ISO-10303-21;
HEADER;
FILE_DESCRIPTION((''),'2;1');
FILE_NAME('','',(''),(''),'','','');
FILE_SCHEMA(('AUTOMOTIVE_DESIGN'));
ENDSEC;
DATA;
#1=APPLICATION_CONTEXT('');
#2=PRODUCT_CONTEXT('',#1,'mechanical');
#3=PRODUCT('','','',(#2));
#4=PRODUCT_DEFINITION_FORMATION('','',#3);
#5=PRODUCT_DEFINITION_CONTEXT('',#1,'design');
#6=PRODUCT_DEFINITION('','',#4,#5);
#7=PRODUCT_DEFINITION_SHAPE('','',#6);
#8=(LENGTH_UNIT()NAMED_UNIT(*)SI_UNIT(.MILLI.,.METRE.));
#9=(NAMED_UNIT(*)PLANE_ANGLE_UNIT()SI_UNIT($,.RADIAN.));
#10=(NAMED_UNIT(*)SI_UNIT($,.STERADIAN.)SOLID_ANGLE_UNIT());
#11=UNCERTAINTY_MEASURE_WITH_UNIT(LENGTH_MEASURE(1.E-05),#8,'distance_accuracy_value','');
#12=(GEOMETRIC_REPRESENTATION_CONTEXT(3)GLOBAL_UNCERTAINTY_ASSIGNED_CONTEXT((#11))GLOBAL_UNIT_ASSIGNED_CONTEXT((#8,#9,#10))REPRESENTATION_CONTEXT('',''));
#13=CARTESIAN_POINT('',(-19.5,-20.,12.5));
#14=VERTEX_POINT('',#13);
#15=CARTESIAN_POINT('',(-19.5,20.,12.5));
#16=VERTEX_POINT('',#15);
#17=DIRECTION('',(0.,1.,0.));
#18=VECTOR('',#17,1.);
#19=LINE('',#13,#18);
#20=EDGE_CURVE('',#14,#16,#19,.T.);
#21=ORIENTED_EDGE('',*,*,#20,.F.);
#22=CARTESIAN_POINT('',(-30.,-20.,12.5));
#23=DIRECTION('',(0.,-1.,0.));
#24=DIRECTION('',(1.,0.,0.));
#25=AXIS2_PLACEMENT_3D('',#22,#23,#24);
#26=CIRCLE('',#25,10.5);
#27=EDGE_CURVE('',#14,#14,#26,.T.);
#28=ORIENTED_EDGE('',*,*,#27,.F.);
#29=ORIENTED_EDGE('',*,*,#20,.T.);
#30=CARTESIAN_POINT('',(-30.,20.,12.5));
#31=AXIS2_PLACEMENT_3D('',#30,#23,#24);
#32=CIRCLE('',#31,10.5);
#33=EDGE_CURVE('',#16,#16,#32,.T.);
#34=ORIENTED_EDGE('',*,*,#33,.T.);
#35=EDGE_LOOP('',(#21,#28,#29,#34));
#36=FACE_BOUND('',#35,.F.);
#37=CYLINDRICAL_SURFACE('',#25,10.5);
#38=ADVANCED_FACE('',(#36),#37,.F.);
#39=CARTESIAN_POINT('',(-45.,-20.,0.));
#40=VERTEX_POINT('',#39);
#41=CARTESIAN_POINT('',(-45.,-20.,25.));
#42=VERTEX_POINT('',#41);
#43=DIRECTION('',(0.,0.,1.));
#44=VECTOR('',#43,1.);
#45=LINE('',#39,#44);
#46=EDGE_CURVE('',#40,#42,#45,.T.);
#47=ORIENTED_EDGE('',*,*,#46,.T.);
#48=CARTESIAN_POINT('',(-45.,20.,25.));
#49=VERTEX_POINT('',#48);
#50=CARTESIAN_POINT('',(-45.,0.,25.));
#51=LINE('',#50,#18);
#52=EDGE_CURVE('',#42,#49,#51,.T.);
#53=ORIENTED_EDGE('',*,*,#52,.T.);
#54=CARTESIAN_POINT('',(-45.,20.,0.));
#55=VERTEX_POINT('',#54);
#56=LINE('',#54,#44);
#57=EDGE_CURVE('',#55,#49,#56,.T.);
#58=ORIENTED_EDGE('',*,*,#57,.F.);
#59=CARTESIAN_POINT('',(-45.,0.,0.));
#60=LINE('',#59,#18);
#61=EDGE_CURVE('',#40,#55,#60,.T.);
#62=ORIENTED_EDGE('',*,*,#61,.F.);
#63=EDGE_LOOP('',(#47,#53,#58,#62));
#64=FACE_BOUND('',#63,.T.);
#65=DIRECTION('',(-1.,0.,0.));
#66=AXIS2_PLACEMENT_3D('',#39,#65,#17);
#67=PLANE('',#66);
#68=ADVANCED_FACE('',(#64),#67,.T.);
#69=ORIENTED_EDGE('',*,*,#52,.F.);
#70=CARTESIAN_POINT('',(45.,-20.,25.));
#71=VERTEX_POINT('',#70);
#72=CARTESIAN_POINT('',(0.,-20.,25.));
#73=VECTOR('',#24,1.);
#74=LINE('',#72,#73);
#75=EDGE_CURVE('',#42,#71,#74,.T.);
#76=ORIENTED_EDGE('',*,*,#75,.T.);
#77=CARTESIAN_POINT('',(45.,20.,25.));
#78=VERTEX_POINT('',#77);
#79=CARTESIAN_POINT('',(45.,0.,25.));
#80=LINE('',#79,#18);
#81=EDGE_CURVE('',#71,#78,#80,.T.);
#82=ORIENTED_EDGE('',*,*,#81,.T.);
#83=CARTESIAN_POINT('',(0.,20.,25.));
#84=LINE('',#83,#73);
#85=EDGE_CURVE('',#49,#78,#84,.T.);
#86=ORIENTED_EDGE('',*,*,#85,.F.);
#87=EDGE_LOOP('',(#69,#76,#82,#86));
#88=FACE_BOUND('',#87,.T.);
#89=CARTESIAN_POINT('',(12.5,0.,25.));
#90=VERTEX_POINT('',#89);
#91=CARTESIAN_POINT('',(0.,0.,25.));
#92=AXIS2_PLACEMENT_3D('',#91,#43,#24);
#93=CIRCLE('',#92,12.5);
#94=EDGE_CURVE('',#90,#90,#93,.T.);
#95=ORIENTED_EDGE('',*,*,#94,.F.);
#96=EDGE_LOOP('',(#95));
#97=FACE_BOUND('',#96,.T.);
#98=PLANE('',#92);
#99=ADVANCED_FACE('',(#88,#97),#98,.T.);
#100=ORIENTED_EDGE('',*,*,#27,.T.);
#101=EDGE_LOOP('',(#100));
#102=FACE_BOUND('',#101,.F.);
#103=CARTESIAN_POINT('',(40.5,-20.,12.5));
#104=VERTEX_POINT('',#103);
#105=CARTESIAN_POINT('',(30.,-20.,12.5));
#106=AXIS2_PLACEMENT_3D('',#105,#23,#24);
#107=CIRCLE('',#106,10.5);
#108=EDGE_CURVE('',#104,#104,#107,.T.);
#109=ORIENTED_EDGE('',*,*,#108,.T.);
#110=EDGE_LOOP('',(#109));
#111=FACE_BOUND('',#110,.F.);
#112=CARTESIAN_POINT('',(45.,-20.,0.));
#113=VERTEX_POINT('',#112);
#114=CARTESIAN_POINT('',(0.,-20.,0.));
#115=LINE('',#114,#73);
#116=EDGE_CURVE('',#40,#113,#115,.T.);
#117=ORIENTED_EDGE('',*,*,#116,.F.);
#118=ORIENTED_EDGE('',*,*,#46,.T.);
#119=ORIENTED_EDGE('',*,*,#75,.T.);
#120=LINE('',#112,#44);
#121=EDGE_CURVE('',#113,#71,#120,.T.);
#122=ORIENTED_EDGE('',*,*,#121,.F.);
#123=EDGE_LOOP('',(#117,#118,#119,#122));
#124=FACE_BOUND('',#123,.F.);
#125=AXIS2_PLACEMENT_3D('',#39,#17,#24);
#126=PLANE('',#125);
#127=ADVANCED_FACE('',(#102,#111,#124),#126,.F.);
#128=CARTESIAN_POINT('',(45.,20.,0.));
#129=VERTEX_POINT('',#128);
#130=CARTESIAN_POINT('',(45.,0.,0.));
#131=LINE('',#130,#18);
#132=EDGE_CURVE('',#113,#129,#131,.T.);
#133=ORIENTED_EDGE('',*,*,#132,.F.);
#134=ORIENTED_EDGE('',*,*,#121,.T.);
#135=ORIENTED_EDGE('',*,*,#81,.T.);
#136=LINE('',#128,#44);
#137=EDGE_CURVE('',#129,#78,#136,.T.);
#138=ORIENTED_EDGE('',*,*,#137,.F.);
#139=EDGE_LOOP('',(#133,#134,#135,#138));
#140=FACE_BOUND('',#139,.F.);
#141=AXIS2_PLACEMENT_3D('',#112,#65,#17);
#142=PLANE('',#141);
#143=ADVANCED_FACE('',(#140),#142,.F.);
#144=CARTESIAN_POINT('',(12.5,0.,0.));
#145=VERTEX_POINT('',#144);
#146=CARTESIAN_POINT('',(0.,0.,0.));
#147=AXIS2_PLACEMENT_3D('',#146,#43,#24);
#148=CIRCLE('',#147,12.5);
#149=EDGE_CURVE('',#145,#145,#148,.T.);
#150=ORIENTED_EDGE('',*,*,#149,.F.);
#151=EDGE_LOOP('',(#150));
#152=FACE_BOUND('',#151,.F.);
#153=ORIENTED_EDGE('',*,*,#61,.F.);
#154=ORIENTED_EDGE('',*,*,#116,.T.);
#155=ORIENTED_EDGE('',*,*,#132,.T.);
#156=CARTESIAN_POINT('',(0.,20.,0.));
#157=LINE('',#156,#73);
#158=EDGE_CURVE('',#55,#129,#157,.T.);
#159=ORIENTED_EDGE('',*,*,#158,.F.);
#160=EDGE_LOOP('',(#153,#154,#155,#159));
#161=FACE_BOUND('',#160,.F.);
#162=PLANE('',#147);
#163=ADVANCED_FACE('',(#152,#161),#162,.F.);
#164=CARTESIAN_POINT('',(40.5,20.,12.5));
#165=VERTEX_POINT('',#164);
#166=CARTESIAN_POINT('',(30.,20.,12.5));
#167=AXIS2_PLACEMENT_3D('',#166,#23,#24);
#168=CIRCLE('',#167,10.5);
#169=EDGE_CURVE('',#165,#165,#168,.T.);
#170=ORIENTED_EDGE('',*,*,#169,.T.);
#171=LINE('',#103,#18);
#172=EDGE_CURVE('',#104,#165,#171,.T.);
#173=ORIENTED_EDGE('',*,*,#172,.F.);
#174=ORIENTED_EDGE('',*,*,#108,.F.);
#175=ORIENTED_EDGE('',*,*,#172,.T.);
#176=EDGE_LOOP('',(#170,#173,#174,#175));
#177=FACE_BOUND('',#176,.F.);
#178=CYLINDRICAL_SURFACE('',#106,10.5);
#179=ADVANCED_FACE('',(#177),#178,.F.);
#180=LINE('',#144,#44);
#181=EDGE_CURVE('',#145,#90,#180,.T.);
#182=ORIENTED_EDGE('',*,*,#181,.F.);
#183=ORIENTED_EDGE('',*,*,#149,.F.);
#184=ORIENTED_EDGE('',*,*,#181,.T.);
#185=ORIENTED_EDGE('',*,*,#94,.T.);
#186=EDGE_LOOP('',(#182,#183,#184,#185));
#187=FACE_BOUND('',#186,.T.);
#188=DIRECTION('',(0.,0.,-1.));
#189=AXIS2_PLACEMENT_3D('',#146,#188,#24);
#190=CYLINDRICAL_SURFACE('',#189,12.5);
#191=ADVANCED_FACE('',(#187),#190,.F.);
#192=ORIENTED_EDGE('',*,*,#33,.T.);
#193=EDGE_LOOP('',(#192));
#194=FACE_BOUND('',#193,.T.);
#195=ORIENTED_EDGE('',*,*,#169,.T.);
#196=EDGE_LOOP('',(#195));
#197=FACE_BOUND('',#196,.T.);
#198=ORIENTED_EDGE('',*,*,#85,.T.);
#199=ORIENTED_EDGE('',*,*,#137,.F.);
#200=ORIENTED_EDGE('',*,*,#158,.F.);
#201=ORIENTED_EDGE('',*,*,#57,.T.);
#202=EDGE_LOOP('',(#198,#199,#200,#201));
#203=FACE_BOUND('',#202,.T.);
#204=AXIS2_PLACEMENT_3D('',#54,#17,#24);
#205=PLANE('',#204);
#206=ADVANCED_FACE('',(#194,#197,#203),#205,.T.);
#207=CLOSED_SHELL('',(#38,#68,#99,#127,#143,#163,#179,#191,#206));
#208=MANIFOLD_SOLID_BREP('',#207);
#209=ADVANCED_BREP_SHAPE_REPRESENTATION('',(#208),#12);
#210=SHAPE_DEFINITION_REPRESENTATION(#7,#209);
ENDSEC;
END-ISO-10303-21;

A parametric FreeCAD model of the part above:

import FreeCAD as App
import Part
import Sketcher

V = App.Vector

doc = App.newDocument("Part")
body = doc.addObject("PartDesign::Body", "Body")

# Sketch on XY plane
sketch1 = doc.addObject("Sketcher::SketchObject", "Sketch")
body.addObject(sketch1)
sketch1.AttachmentSupport = (doc.XY_Plane, [""])
sketch1.MapMode = "FlatFace"
sketch1.addGeometry([
    Part.LineSegment(V(-45, 20, 0), V(-45, -20, 0)),  # 0
    Part.LineSegment(V(-45, -20, 0), V(45, -20, 0)),  # 1
    Part.LineSegment(V(45, -20, 0), V(45, 20, 0)),  # 2
    Part.LineSegment(V(45, 20, 0), V(-45, 20, 0)),  # 3
    Part.Circle(V(0, 0, 0), V(0, 0, 1), 12.5),  # 4
], False)
sketch1.addConstraint([
    Sketcher.Constraint("Coincident", 0, 2, 1, 1),
    Sketcher.Constraint("Coincident", 1, 2, 2, 1),
    Sketcher.Constraint("Coincident", 2, 2, 3, 1),
    Sketcher.Constraint("Coincident", 3, 2, 0, 1),
    Sketcher.Constraint("Vertical", 0),
    Sketcher.Constraint("Horizontal", 1),
    Sketcher.Constraint("Vertical", 2),
    Sketcher.Constraint("Horizontal", 3),
    Sketcher.Constraint("Coincident", 4, 3, -1, 1),
    Sketcher.Constraint("Symmetric", 0, 2, 2, 2, -1, 1),
    Sketcher.Constraint("Diameter", 4, 25.0),
    Sketcher.Constraint("DistanceX", 1, 1, 1, 2, 90.0),
    Sketcher.Constraint("DistanceY", 0, 2, 0, 1, 40.0),
])
pad1 = doc.addObject("PartDesign::Pad", "Pad")
body.addObject(pad1)
pad1.Profile = sketch1
pad1.Length = 25

# Sketch on XZ plane
sketch2 = doc.addObject("Sketcher::SketchObject", "Sketch001")
body.addObject(sketch2)
sketch2.AttachmentSupport = (doc.XZ_Plane, [""])
sketch2.MapMode = "FlatFace"
sketch2.AttachmentOffset = App.Placement(V(0, 0, 20), App.Rotation())
sketch2.addGeometry([
    Part.Circle(V(30, 12.5, 0), V(0, 0, 1), 10.5),
    Part.Circle(V(-30, 12.5, 0), V(0, 0, 1), 10.5),
], False)
sketch2.addConstraint([
    Sketcher.Constraint("Equal", 0, 1),
    Sketcher.Constraint("Symmetric", 0, 3, 1, 3, -2),
    Sketcher.Constraint("Diameter", 0, 21.0),
    Sketcher.Constraint("DistanceX", -1, 1, 0, 3, 30.0),
    Sketcher.Constraint("DistanceY", -1, 1, 0, 3, 12.5),
])
pocket1 = doc.addObject("PartDesign::Pocket", "Pocket")
body.addObject(pocket1)
pocket1.Profile = sketch2
pocket1.Type = "ThroughAll"

doc.recompute()
